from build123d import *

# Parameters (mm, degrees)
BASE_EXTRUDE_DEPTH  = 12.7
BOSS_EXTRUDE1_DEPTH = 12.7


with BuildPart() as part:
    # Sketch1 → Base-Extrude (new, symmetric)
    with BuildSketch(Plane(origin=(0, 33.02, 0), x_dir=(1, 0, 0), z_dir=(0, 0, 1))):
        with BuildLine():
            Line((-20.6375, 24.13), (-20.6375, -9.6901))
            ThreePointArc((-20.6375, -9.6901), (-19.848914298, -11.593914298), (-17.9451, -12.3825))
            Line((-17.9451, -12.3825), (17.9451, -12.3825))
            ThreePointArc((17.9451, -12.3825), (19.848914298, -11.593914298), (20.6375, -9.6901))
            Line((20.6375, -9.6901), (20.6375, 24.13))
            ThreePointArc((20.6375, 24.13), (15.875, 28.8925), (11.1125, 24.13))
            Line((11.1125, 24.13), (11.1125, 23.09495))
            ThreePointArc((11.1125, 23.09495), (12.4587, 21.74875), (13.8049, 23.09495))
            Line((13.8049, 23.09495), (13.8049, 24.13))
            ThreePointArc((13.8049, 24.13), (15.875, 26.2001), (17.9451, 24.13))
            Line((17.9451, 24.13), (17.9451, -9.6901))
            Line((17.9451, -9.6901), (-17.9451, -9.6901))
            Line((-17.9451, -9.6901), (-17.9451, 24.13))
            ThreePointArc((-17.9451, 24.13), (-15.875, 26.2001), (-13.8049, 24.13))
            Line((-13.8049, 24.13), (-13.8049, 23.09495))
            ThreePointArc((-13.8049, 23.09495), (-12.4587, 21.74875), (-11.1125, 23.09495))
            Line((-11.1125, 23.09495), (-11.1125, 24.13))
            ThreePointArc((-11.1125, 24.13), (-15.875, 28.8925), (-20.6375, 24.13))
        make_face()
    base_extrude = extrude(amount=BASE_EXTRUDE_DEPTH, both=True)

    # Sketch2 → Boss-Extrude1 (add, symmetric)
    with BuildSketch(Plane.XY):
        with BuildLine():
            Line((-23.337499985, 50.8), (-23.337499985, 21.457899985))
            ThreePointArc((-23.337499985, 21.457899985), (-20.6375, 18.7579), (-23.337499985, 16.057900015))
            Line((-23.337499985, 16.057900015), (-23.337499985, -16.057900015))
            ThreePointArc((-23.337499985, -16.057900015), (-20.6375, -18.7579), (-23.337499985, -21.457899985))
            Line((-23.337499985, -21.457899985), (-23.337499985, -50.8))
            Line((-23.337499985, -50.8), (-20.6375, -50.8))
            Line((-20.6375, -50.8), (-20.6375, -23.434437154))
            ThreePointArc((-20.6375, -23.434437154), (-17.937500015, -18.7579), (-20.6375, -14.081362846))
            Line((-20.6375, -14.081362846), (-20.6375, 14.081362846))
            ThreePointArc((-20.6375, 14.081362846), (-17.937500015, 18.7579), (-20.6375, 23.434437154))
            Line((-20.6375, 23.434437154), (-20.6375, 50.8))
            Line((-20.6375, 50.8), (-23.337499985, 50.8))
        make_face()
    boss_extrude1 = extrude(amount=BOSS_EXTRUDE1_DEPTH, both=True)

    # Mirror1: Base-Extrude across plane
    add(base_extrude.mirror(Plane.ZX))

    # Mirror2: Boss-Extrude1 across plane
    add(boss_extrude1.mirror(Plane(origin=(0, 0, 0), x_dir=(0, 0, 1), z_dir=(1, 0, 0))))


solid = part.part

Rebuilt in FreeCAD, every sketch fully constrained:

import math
import FreeCAD as App
import Part
import Sketcher
Q = App.Units.Quantity

doc = App.newDocument("Part")
body = doc.addObject("PartDesign::Body", "Body")

sketch1 = body.newObject("Sketcher::SketchObject", "Sketch")
sketch1.AttachmentSupport = (doc.getObject("XY_Plane"), [""])
sketch1.MapMode = "FlatFace"
sketch1.addGeometry(Part.LineSegment(App.Vector(-20.6, 57.1, 0), App.Vector(-20.6, 23.3, 0)), False)
sketch1.addGeometry(Part.ArcOfCircle(Part.Circle(App.Vector(-17.9, 23.3, 0), App.Vector(0, 0, 1), 2.7), math.radians(180), math.radians(270)), False)
sketch1.addGeometry(Part.LineSegment(App.Vector(-17.9, 20.6, 0), App.Vector(17.9, 20.6, 0)), False)
sketch1.addGeometry(Part.ArcOfCircle(Part.Circle(App.Vector(17.9, 23.3, 0), App.Vector(0, 0, 1), 2.7), math.radians(-90), math.radians(0)), False)
sketch1.addGeometry(Part.LineSegment(App.Vector(20.6, 23.3, 0), App.Vector(20.6, 57.1, 0)), False)
sketch1.addGeometry(Part.ArcOfCircle(Part.Circle(App.Vector(15.9, 57.1, 0), App.Vector(0, 0, 1), 4.8), math.radians(0), math.radians(180)), False)
sketch1.addGeometry(Part.LineSegment(App.Vector(11.1, 57.1, 0), App.Vector(11.1, 56.1, 0)), False)
sketch1.addGeometry(Part.ArcOfCircle(Part.Circle(App.Vector(12.5, 56.1, 0), App.Vector(0, 0, 1), 1.3), math.radians(180), math.radians(360)), False)
sketch1.addGeometry(Part.LineSegment(App.Vector(13.8, 56.1, 0), App.Vector(13.8, 57.1, 0)), False)
sketch1.addGeometry(Part.ArcOfCircle(Part.Circle(App.Vector(15.9, 57.1, 0), App.Vector(0, 0, 1), 2.1), math.radians(0), math.radians(180)), False)
sketch1.addGeometry(Part.LineSegment(App.Vector(17.9, 57.1, 0), App.Vector(17.9, 23.3, 0)), False)
sketch1.addGeometry(Part.LineSegment(App.Vector(17.9, 23.3, 0), App.Vector(-17.9, 23.3, 0)), False)
sketch1.addGeometry(Part.LineSegment(App.Vector(-17.9, 23.3, 0), App.Vector(-17.9, 57.1, 0)), False)
sketch1.addGeometry(Part.ArcOfCircle(Part.Circle(App.Vector(-15.9, 57.1, 0), App.Vector(0, 0, 1), 2.1), math.radians(0), math.radians(180)), False)
sketch1.addGeometry(Part.LineSegment(App.Vector(-13.8, 57.1, 0), App.Vector(-13.8, 56.1, 0)), False)
sketch1.addGeometry(Part.ArcOfCircle(Part.Circle(App.Vector(-12.5, 56.1, 0), App.Vector(0, 0, 1), 1.3), math.radians(180), math.radians(360)), False)
sketch1.addGeometry(Part.LineSegment(App.Vector(-11.1, 56.1, 0), App.Vector(-11.1, 57.1, 0)), False)
sketch1.addGeometry(Part.ArcOfCircle(Part.Circle(App.Vector(-15.9, 57.1, 0), App.Vector(0, 0, 1), 4.8), math.radians(0), math.radians(180)), False)
sketch1.addConstraint(Sketcher.Constraint("Tangent", 0, 2, 1, 1))
sketch1.addConstraint(Sketcher.Constraint("Tangent", 1, 2, 2, 1))
sketch1.addConstraint(Sketcher.Constraint("Tangent", 2, 2, 3, 1))
sketch1.addConstraint(Sketcher.Constraint("Tangent", 3, 2, 4, 1))
sketch1.addConstraint(Sketcher.Constraint("Tangent", 4, 2, 5, 1))
sketch1.addConstraint(Sketcher.Constraint("Tangent", 5, 2, 6, 1))
sketch1.addConstraint(Sketcher.Constraint("Tangent", 6, 2, 7, 1))
sketch1.addConstraint(Sketcher.Constraint("Tangent", 7, 2, 8, 1))
sketch1.addConstraint(Sketcher.Constraint("Tangent", 8, 2, 9, 2))
sketch1.addConstraint(Sketcher.Constraint("Tangent", 9, 1, 10, 1))
sketch1.addConstraint(Sketcher.Constraint("Coincident", 10, 2, 11, 1))
sketch1.addConstraint(Sketcher.Constraint("Coincident", 11, 2, 12, 1))
sketch1.addConstraint(Sketcher.Constraint("Tangent", 12, 2, 13, 2))
sketch1.addConstraint(Sketcher.Constraint("Tangent", 13, 1, 14, 1))
sketch1.addConstraint(Sketcher.Constraint("Tangent", 14, 2, 15, 1))
sketch1.addConstraint(Sketcher.Constraint("Tangent", 15, 2, 16, 1))
sketch1.addConstraint(Sketcher.Constraint("Tangent", 16, 2, 17, 1))
sketch1.addConstraint(Sketcher.Constraint("Tangent", 17, 2, 0, 1))
sketch1.addConstraint(Sketcher.Constraint("Vertical", 0))
sketch1.addConstraint(Sketcher.Constraint("Horizontal", 2))
sketch1.addConstraint(Sketcher.Constraint("Vertical", 4))
sketch1.addConstraint(Sketcher.Constraint("Vertical", 6))
sketch1.addConstraint(Sketcher.Constraint("Vertical", 8))
sketch1.addConstraint(Sketcher.Constraint("Vertical", 10))
sketch1.addConstraint(Sketcher.Constraint("Horizontal", 11))
sketch1.addConstraint(Sketcher.Constraint("Vertical", 12))
sketch1.addConstraint(Sketcher.Constraint("Vertical", 14))
sketch1.addConstraint(Sketcher.Constraint("Vertical", 16))
sketch1.addConstraint(Sketcher.Constraint("Coincident", 9, 3, 5, 3))
sketch1.addConstraint(Sketcher.Constraint("Coincident", 17, 3, 13, 3))
sketch1.addConstraint(Sketcher.Constraint("Coincident", 10, 2, 3, 3))
sketch1.addConstraint(Sketcher.Constraint("Coincident", 11, 2, 1, 3))
sketch1.addConstraint(Sketcher.Constraint("Equal", 9, 13))
sketch1.addConstraint(Sketcher.Constraint("Symmetric", 5, 3, 13, 3, -2))
sketch1.addConstraint(Sketcher.Constraint("Horizontal", 7, 3, 15, 3))
sketch1.addConstraint(Sketcher.Constraint("Radius", 1, Q("0.106 in")))
sketch1.addConstraint(Sketcher.Constraint("Radius", 5, Q("0.1875 in")))
sketch1.addConstraint(Sketcher.Constraint("DistanceX", 2, 1, 2, 2, Q("1.413 in")))
sketch1.addConstraint(Sketcher.Constraint("DistanceY", -1, 1, 5, 3, Q("2.25 in")))
sketch1.addConstraint(Sketcher.Constraint("DistanceY", 0, 2, 0, 1, Q("1.3315 in")))
sketch1.addConstraint(Sketcher.Constraint("DistanceY", 6, 2, 6, 1, 1.03505))
pad1 = body.newObject("PartDesign::Pad", "Pad")
pad1.Profile = sketch1
pad1.Length = Q("1 in")
pad1.Midplane = True

sketch2 = body.newObject("Sketcher::SketchObject", "Sketch001")
sketch2.AttachmentSupport = (doc.getObject("XY_Plane"), [""])
sketch2.MapMode = "FlatFace"
sketch2.addGeometry(Part.LineSegment(App.Vector(-23.3, 50.8, 0), App.Vector(-23.3, 21.5, 0)), False)
sketch2.addGeometry(Part.ArcOfCircle(Part.Circle(App.Vector(-23.3, 18.8, 0), App.Vector(0, 0, 1), 2.7), math.radians(-90), math.radians(90)), False)
sketch2.addGeometry(Part.LineSegment(App.Vector(-23.3, 16.1, 0), App.Vector(-23.3, -16.1, 0)), False)
sketch2.addGeometry(Part.ArcOfCircle(Part.Circle(App.Vector(-23.3, -18.8, 0), App.Vector(0, 0, 1), 2.7), math.radians(-90), math.radians(90)), False)
sketch2.addGeometry(Part.LineSegment(App.Vector(-23.3, -21.5, 0), App.Vector(-23.3, -50.8, 0)), False)
sketch2.addGeometry(Part.LineSegment(App.Vector(-23.3, -50.8, 0), App.Vector(-20.6, -50.8, 0)), False)
sketch2.addGeometry(Part.LineSegment(App.Vector(-20.6, -50.8, 0), App.Vector(-20.6, -23.4, 0)), False)
sketch2.addGeometry(Part.ArcOfCircle(Part.Circle(App.Vector(-23.3, -18.8, 0), App.Vector(0, 0, 1), 5.4), math.radians(-60), math.radians(60)), False)
sketch2.addGeometry(Part.LineSegment(App.Vector(-20.6, -14.1, 0), App.Vector(-20.6, 14.1, 0)), False)
sketch2.addGeometry(Part.ArcOfCircle(Part.Circle(App.Vector(-23.3, 18.8, 0), App.Vector(0, 0, 1), 5.4), math.radians(-60), math.radians(60)), False)
sketch2.addGeometry(Part.LineSegment(App.Vector(-20.6, 23.4, 0), App.Vector(-20.6, 50.8, 0)), False)
sketch2.addGeometry(Part.LineSegment(App.Vector(-20.6, 50.8, 0), App.Vector(-23.3, 50.8, 0)), False)
sketch2.addConstraint(Sketcher.Constraint("Coincident", 0, 2, 1, 2))
sketch2.addConstraint(Sketcher.Constraint("Coincident", 1, 1, 2, 1))
sketch2.addConstraint(Sketcher.Constraint("Coincident", 2, 2, 3, 2))
sketch2.addConstraint(Sketcher.Constraint("Coincident", 3, 1, 4, 1))
sketch2.addConstraint(Sketcher.Constraint("Coincident", 4, 2, 5, 1))
sketch2.addConstraint(Sketcher.Constraint("Coincident", 5, 2, 6, 1))
sketch2.addConstraint(Sketcher.Constraint("Coincident", 6, 2, 7, 1))
sketch2.addConstraint(Sketcher.Constraint("Coincident", 7, 2, 8, 1))
sketch2.addConstraint(Sketcher.Constraint("Coincident", 8, 2, 9, 1))
sketch2.addConstraint(Sketcher.Constraint("Coincident", 9, 2, 10, 1))
sketch2.addConstraint(Sketcher.Constraint("Coincident", 10, 2, 11, 1))
sketch2.addConstraint(Sketcher.Constraint("Coincident", 11, 2, 0, 1))
sketch2.addConstraint(Sketcher.Constraint("Vertical", 0))
sketch2.addConstraint(Sketcher.Constraint("Vertical", 2))
sketch2.addConstraint(Sketcher.Constraint("Vertical", 4))
sketch2.addConstraint(Sketcher.Constraint("Horizontal", 5))
sketch2.addConstraint(Sketcher.Constraint("Vertical", 6))
sketch2.addConstraint(Sketcher.Constraint("Vertical", 8))
sketch2.addConstraint(Sketcher.Constraint("Vertical", 10))
sketch2.addConstraint(Sketcher.Constraint("Horizontal", 11))
sketch2.addConstraint(Sketcher.Constraint("Coincident", 7, 3, 3, 3))
sketch2.addConstraint(Sketcher.Constraint("Coincident", 9, 3, 1, 3))
sketch2.addConstraint(Sketcher.Constraint("Equal", 1, 3))
sketch2.addConstraint(Sketcher.Constraint("Equal", 7, 9))
sketch2.addConstraint(Sketcher.Constraint("Symmetric", 1, 3, 3, 3, -1))
sketch2.addConstraint(Sketcher.Constraint("Symmetric", 5, 2, 10, 2, -1))
sketch2.addConstraint(Sketcher.Constraint("Vertical", 9, 3, 0, 2))
sketch2.addConstraint(Sketcher.Constraint("Vertical", 0, 2, 1, 1))
sketch2.addConstraint(Sketcher.Constraint("Vertical", 2, 2, 3, 1))
sketch2.addConstraint(Sketcher.Constraint("Vertical", 6, 2, 7, 2))
sketch2.addConstraint(Sketcher.Constraint("DistanceY", 4, 2, -1, 1, Q("2 in")))
sketch2.addConstraint(Sketcher.Constraint("Radius", 1, 2.7))
sketch2.addConstraint(Sketcher.Constraint("Radius", 7, 5.4))
sketch2.addConstraint(Sketcher.Constraint("DistanceX", 5, 2, -1, 1, Q("0.8125 in")))
sketch2.addConstraint(Sketcher.Constraint("DistanceY", 3, 3, 1, 3, Q("1.477 in")))
sketch2.addConstraint(Sketcher.Constraint("DistanceX", 5, 1, 5, 2, 2.7))
pad2 = body.newObject("PartDesign::Pad", "Pad001")
pad2.Profile = sketch2
pad2.Length = Q("1 in")
pad2.Midplane = True
doc.recompute()

mirrored = body.newObject("PartDesign::Mirrored", "Mirrored")
mirrored.Originals = [pad1]
mirrored.MirrorPlane = (doc.getObject("XZ_Plane"), [""])
body.Tip = mirrored
doc.recompute()

mirrored2 = body.newObject("PartDesign::Mirrored", "Mirrored001")
mirrored2.Originals = [pad2]
mirrored2.MirrorPlane = (doc.getObject("YZ_Plane"), [""])
body.Tip = mirrored2

doc.recompute()
